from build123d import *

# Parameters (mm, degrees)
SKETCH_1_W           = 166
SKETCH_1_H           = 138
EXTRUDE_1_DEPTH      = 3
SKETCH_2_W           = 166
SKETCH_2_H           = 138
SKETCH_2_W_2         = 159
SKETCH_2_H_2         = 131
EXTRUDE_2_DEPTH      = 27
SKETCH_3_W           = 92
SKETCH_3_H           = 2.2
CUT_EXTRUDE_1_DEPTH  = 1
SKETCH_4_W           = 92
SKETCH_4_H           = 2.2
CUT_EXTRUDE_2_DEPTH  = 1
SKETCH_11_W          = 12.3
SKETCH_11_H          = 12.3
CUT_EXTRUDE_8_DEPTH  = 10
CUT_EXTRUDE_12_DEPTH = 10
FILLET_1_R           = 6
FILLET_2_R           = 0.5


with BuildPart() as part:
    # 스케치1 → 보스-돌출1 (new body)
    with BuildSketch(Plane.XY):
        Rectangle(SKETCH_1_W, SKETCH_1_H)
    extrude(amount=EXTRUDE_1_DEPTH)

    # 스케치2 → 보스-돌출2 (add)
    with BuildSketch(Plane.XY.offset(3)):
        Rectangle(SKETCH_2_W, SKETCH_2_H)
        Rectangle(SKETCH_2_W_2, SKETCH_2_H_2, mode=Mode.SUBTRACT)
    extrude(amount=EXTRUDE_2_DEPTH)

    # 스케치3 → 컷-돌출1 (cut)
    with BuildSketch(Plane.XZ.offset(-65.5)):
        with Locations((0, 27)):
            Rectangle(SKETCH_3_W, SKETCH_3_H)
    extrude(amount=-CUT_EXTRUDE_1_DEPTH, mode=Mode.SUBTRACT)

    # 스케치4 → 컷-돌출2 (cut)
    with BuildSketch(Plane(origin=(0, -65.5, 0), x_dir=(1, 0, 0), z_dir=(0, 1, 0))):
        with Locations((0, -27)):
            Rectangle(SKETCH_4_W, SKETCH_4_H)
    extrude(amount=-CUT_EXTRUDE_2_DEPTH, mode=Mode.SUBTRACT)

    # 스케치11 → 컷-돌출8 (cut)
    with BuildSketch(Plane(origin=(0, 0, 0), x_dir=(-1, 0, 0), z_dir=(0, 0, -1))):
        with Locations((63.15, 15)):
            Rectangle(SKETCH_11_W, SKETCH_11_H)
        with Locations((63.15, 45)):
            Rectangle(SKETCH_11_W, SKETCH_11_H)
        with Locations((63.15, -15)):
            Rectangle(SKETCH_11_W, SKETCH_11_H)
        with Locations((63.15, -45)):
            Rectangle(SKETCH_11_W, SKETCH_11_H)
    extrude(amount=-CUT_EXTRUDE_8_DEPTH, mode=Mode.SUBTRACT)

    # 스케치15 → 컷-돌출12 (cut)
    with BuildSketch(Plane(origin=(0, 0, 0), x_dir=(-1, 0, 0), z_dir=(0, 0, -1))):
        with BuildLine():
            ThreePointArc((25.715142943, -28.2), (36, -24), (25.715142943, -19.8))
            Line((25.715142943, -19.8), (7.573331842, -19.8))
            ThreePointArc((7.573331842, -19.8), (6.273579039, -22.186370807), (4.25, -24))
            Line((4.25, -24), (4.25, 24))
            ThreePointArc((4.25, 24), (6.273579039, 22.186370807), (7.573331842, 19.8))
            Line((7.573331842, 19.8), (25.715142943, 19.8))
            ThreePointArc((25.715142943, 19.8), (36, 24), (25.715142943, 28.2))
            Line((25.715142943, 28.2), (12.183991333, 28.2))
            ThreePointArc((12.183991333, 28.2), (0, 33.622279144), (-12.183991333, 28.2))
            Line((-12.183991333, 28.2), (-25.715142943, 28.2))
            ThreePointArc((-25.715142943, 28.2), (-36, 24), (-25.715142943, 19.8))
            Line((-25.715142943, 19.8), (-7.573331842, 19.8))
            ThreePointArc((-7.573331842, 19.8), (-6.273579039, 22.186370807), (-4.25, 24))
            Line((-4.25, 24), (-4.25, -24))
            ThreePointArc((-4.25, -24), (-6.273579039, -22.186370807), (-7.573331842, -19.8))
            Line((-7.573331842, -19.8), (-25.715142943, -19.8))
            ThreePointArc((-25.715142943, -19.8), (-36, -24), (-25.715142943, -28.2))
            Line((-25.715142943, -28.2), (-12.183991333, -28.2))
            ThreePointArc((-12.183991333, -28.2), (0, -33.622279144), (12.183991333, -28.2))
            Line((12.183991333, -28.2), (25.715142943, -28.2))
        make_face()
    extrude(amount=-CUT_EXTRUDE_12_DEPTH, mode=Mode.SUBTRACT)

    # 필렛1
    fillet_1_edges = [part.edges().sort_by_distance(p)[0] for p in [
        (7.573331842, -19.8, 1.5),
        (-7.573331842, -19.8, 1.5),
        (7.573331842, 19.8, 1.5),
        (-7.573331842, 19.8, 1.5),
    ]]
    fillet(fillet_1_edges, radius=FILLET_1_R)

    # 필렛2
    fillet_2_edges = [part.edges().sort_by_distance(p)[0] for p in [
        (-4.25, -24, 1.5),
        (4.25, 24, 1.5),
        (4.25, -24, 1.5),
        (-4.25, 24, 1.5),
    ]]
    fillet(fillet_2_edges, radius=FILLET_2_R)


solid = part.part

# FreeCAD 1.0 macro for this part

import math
import FreeCAD as App
import Part
import Sketcher

V = App.Vector


def edges_at(feature, points):
    """Names of the edges that pass closest to the given points."""
    edges = feature.Shape.Edges
    near = lambda p: min(range(len(edges)), key=lambda i: edges[i].distToShape(Part.Vertex(*p))[0])
    return sorted({f"Edge{near(p) + 1}" for p in points})

doc = App.newDocument("Part")
params = doc.addObject("Spreadsheet::Sheet", "Params")
for row, (alias, value) in enumerate([
    ("sketch1_width", "166 mm"),
    ("sketch1_height", "138 mm"),
    ("pad1_length", "3 mm"),
    ("sketch2_width", "166 mm"),
    ("sketch2_width2", "159 mm"),
    ("sketch2_height", "138 mm"),
    ("sketch2_height2", "131 mm"),
    ("pad2_length", "27 mm"),
    ("sketch3_width", "92 mm"),
    ("sketch3_height", "2.2 mm"),
    ("pocket1_length", "1 mm"),
    ("sketch4_width", "92 mm"),
    ("sketch4_height", "2.2 mm"),
    ("pocket2_length", "1 mm"),
    ("sketch5_width", "12.3 mm"),
    ("pocket3_length", "10 mm"),
    ("sketch6_radius", "6 mm"),
    ("sketch6_radius2", "8 mm"),
    ("sketch6_radius3", "16.4 mm"),
    ("sketch6_height", "48 mm"),
    ("pocket4_length", "10 mm"),
    ("fillet_radius", "6 mm"),
    ("fillet2_radius", "0.5 mm"),
], start=1):
    params.set(f"A{row}", alias)
    params.set(f"B{row}", "=" + value)
    params.setAlias(f"B{row}", alias)

body = doc.addObject("PartDesign::Body", "Body")

# Sketch on XY plane
sketch1 = body.newObject("Sketcher::SketchObject", "Sketch")
sketch1.AttachmentSupport = (doc.getObject("XY_Plane"), [""])
sketch1.MapMode = "FlatFace"
sketch1.addGeometry([
    Part.LineSegment(V(-83, 69, 0), V(-83, -69, 0)),
    Part.LineSegment(V(-83, -69, 0), V(83, -69, 0)),
    Part.LineSegment(V(83, -69, 0), V(83, 69, 0)),
    Part.LineSegment(V(83, 69, 0), V(-83, 69, 0)),
], False)
sketch1.addConstraint([
    Sketcher.Constraint("Coincident", 0, 2, 1, 1),
    Sketcher.Constraint("Coincident", 1, 2, 2, 1),
    Sketcher.Constraint("Coincident", 2, 2, 3, 1),
    Sketcher.Constraint("Coincident", 3, 2, 0, 1),
    Sketcher.Constraint("Vertical", 0),
    Sketcher.Constraint("Horizontal", 1),
    Sketcher.Constraint("Vertical", 2),
    Sketcher.Constraint("Horizontal", 3),
    Sketcher.Constraint("Symmetric", 0, 2, 2, 2, -1, 1),
    Sketcher.Constraint("DistanceX", 1, 1, 1, 2, 166.0),
    Sketcher.Constraint("DistanceY", 0, 2, 0, 1, 138.0),
])
sketch1.setExpression("Constraints[9]", "Params.sketch1_width")
sketch1.setExpression("Constraints[10]", "Params.sketch1_height")
pad1 = body.newObject("PartDesign::Pad", "Pad")
pad1.Profile = sketch1
pad1.setExpression("Length", "Params.pad1_length")

# Sketch on XY plane
sketch2 = body.newObject("Sketcher::SketchObject", "Sketch001")
sketch2.AttachmentSupport = (doc.getObject("XY_Plane"), [""])
sketch2.MapMode = "FlatFace"
sketch2.AttachmentOffset = App.Placement(V(0, 0, 3), App.Rotation())
sketch2.addGeometry([
    Part.LineSegment(V(-83, 69, 0), V(-83, -69, 0)),  # 0
    Part.LineSegment(V(-83, -69, 0), V(83, -69, 0)),  # 1
    Part.LineSegment(V(83, -69, 0), V(83, 69, 0)),  # 2
    Part.LineSegment(V(83, 69, 0), V(-83, 69, 0)),  # 3
    Part.LineSegment(V(80, -66, 0), V(-80, -66, 0)),  # 4
    Part.LineSegment(V(-80, -66, 0), V(-80, 66, 0)),  # 5
    Part.LineSegment(V(-80, 66, 0), V(80, 66, 0)),  # 6
    Part.LineSegment(V(80, 66, 0), V(80, -66, 0)),  # 7
], False)
sketch2.addConstraint([
    Sketcher.Constraint("Coincident", 0, 2, 1, 1),
    Sketcher.Constraint("Coincident", 1, 2, 2, 1),
    Sketcher.Constraint("Coincident", 2, 2, 3, 1),
    Sketcher.Constraint("Coincident", 3, 2, 0, 1),
    Sketcher.Constraint("Coincident", 4, 2, 5, 1),
    Sketcher.Constraint("Coincident", 5, 2, 6, 1),
    Sketcher.Constraint("Coincident", 6, 2, 7, 1),
    Sketcher.Constraint("Coincident", 7, 2, 4, 1),
    Sketcher.Constraint("Vertical", 0),
    Sketcher.Constraint("Horizontal", 1),
    Sketcher.Constraint("Vertical", 2),
    Sketcher.Constraint("Horizontal", 3),
    Sketcher.Constraint("Horizontal", 4),
    Sketcher.Constraint("Vertical", 5),
    Sketcher.Constraint("Horizontal", 6),
    Sketcher.Constraint("Vertical", 7),
    Sketcher.Constraint("Symmetric", 0, 2, 2, 2, -1, 1),
    Sketcher.Constraint("Symmetric", 4, 2, 6, 2, -1, 1),
    Sketcher.Constraint("DistanceX", 1, 1, 1, 2, 166.0),
    Sketcher.Constraint("DistanceX", 4, 2, 4, 1, 159.0),
    Sketcher.Constraint("DistanceY", 0, 2, 0, 1, 138.0),
    Sketcher.Constraint("DistanceY", 5, 1, 5, 2, 131.0),
])
sketch2.setExpression("Constraints[18]", "Params.sketch2_width")
sketch2.setExpression("Constraints[19]", "Params.sketch2_width2")
sketch2.setExpression("Constraints[20]", "Params.sketch2_height")
sketch2.setExpression("Constraints[21]", "Params.sketch2_height2")
pad2 = body.newObject("PartDesign::Pad", "Pad001")
pad2.Profile = sketch2
pad2.setExpression("Length", "Params.pad2_length")

# Sketch on XZ plane
sketch3 = body.newObject("Sketcher::SketchObject", "Sketch002")
sketch3.AttachmentSupport = (doc.getObject("XZ_Plane"), [""])
sketch3.MapMode = "FlatFace"
sketch3.AttachmentOffset = App.Placement(V(0, 0, -65.5), App.Rotation())
sketch3.addGeometry([
    Part.LineSegment(V(-46, 28.1, 0), V(-46, 25.9, 0)),
    Part.LineSegment(V(-46, 25.9, 0), V(46, 25.9, 0)),
    Part.LineSegment(V(46, 25.9, 0), V(46, 28.1, 0)),
    Part.LineSegment(V(46, 28.1, 0), V(-46, 28.1, 0)),
], False)
sketch3.addConstraint([
    Sketcher.Constraint("Coincident", 0, 2, 1, 1),
    Sketcher.Constraint("Coincident", 1, 2, 2, 1),
    Sketcher.Constraint("Coincident", 2, 2, 3, 1),
    Sketcher.Constraint("Coincident", 3, 2, 0, 1),
    Sketcher.Constraint("Vertical", 0),
    Sketcher.Constraint("Horizontal", 1),
    Sketcher.Constraint("Vertical", 2),
    Sketcher.Constraint("Horizontal", 3),
    Sketcher.Constraint("DistanceX", 1, 1, 1, 2, 92.0),
    Sketcher.Constraint("DistanceY", 0, 2, 0, 1, 2.2),
    Sketcher.Constraint("DistanceX", 0, 2, -1, 1, 46.0),
    Sketcher.Constraint("DistanceY", -1, 1, 0, 2, 25.9),
])
sketch3.setExpression("Constraints[8]", "Params.sketch3_width")
sketch3.setExpression("Constraints[9]", "Params.sketch3_height")
pocket1 = body.newObject("PartDesign::Pocket", "Pocket")
pocket1.Profile = sketch3
pocket1.setExpression("Length", "Params.pocket1_length")

# Sketch on XZ plane
sketch4 = body.newObject("Sketcher::SketchObject", "Sketch003")
sketch4.AttachmentSupport = (doc.getObject("XZ_Plane"), [""])
sketch4.MapMode = "FlatFace"
sketch4.AttachmentOffset = App.Placement(V(0, 0, 65.5), App.Rotation())
sketch4.addGeometry([
    Part.LineSegment(V(-46, 25.9, 0), V(-46, 28.1, 0)),
    Part.LineSegment(V(-46, 28.1, 0), V(46, 28.1, 0)),
    Part.LineSegment(V(46, 28.1, 0), V(46, 25.9, 0)),
    Part.LineSegment(V(46, 25.9, 0), V(-46, 25.9, 0)),
], False)
sketch4.addConstraint([
    Sketcher.Constraint("Coincident", 0, 2, 1, 1),
    Sketcher.Constraint("Coincident", 1, 2, 2, 1),
    Sketcher.Constraint("Coincident", 2, 2, 3, 1),
    Sketcher.Constraint("Coincident", 3, 2, 0, 1),
    Sketcher.Constraint("Vertical", 0),
    Sketcher.Constraint("Horizontal", 1),
    Sketcher.Constraint("Vertical", 2),
    Sketcher.Constraint("Horizontal", 3),
    Sketcher.Constraint("DistanceX", 1, 1, 1, 2, 92.0),
    Sketcher.Constraint("DistanceY", 0, 1, 0, 2, 2.2),
    Sketcher.Constraint("DistanceX", 0, 2, -1, 1, 46.0),
    Sketcher.Constraint("DistanceY", -1, 1, 0, 2, 28.1),
])
sketch4.setExpression("Constraints[8]", "Params.sketch4_width")
sketch4.setExpression("Constraints[9]", "Params.sketch4_height")
pocket2 = body.newObject("PartDesign::Pocket", "Pocket001")
pocket2.Profile = sketch4
pocket2.setExpression("Length", "Params.pocket2_length")
pocket2.Reversed = True

# Sketch on XY plane
sketch5 = body.newObject("Sketcher::SketchObject", "Sketch004")
sketch5.AttachmentSupport = (doc.getObject("XY_Plane"), [""])
sketch5.MapMode = "FlatFace"
sketch5.addGeometry([
    Part.LineSegment(V(-57, 21, 0), V(-57, 9, 0)),  # 0
    Part.LineSegment(V(-57, 9, 0), V(-69, 9, 0)),  # 1
    Part.LineSegment(V(-69, 9, 0), V(-69, 21, 0)),  # 2
    Part.LineSegment(V(-69, 21, 0), V(-57, 21, 0)),  # 3
    Part.LineSegment(V(-57, 51, 0), V(-57, 39, 0)),  # 4
    Part.LineSegment(V(-57, 39, 0), V(-69, 39, 0)),  # 5
    Part.LineSegment(V(-69, 39, 0), V(-69, 51, 0)),  # 6
    Part.LineSegment(V(-69, 51, 0), V(-57, 51, 0)),  # 7
    Part.LineSegment(V(-57, -9, 0), V(-57, -21, 0)),  # 8
    Part.LineSegment(V(-57, -21, 0), V(-69, -21, 0)),  # 9
    Part.LineSegment(V(-69, -21, 0), V(-69, -9, 0)),  # 10
    Part.LineSegment(V(-69, -9, 0), V(-57, -9, 0)),  # 11
    Part.LineSegment(V(-57, -39, 0), V(-57, -51, 0)),  # 12
    Part.LineSegment(V(-57, -51, 0), V(-69, -51, 0)),  # 13
    Part.LineSegment(V(-69, -51, 0), V(-69, -39, 0)),  # 14
    Part.LineSegment(V(-69, -39, 0), V(-57, -39, 0)),  # 15
], False)
sketch5.addConstraint([
    Sketcher.Constraint("Coincident", 0, 2, 1, 1),
    Sketcher.Constraint("Coincident", 1, 2, 2, 1),
    Sketcher.Constraint("Coincident", 2, 2, 3, 1),
    Sketcher.Constraint("Coincident", 3, 2, 0, 1),
    Sketcher.Constraint("Coincident", 4, 2, 5, 1),
    Sketcher.Constraint("Coincident", 5, 2, 6, 1),
    Sketcher.Constraint("Coincident", 6, 2, 7, 1),
    Sketcher.Constraint("Coincident", 7, 2, 4, 1),
    Sketcher.Constraint("Coincident", 8, 2, 9, 1),
    Sketcher.Constraint("Coincident", 9, 2, 10, 1),
    Sketcher.Constraint("Coincident", 10, 2, 11, 1),
    Sketcher.Constraint("Coincident", 11, 2, 8, 1),
    Sketcher.Constraint("Coincident", 12, 2, 13, 1),
    Sketcher.Constraint("Coincident", 13, 2, 14, 1),
    Sketcher.Constraint("Coincident", 14, 2, 15, 1),
    Sketcher.Constraint("Coincident", 15, 2, 12, 1),
    Sketcher.Constraint("Vertical", 0),
    Sketcher.Constraint("Horizontal", 1),
    Sketcher.Constraint("Vertical", 2),
    Sketcher.Constraint("Horizontal", 3),
    Sketcher.Constraint("Vertical", 4),
    Sketcher.Constraint("Horizontal", 5),
    Sketcher.Constraint("Vertical", 6),
    Sketcher.Constraint("Horizontal", 7),
    Sketcher.Constraint("Vertical", 8),
    Sketcher.Constraint("Horizontal", 9),
    Sketcher.Constraint("Vertical", 10),
    Sketcher.Constraint("Horizontal", 11),
    Sketcher.Constraint("Vertical", 12),
    Sketcher.Constraint("Horizontal", 13),
    Sketcher.Constraint("Vertical", 14),
    Sketcher.Constraint("Horizontal", 15),
    Sketcher.Constraint("Symmetric", 3, 2, 8, 2, -1),
    Sketcher.Constraint("Symmetric", 1, 2, 10, 2, -1),
    Sketcher.Constraint("Symmetric", 7, 2, 12, 2, -1),
    Sketcher.Constraint("Symmetric", 5, 2, 14, 2, -1),
    Sketcher.Constraint("Vertical", 3, 2, 4, 2),
    Sketcher.Constraint("Vertical", 2, 2, 5, 2),
    Sketcher.Constraint("Equal", 15, 0),
    Sketcher.Constraint("Equal", 2, 4),
    Sketcher.Constraint("DistanceX", 1, 2, 1, 1, 12.3),
    Sketcher.Constraint("DistanceX", 0, 2, -1, 1, 57.0),
    Sketcher.Constraint("DistanceY", 0, 2, 4, 2, 30.0),
    Sketcher.Constraint("DistanceY", 8, 2, 0, 2, 30.0),
])
sketch5.setExpression("Constraints[40]", "Params.sketch5_width")
pocket3 = body.newObject("PartDesign::Pocket", "Pocket002")
pocket3.Profile = sketch5
pocket3.setExpression("Length", "Params.pocket3_length")
pocket3.Reversed = True

# Sketch on XY plane
sketch6 = body.newObject("Sketcher::SketchObject", "Sketch005")
sketch6.AttachmentSupport = (doc.getObject("XY_Plane"), [""])
sketch6.MapMode = "FlatFace"
sketch6.addGeometry([
    Part.ArcOfCircle(Part.Circle(V(-30, -24, 0), V(0, 0, 1), 6), math.radians(44), math.radians(316)),  # 0
    Part.LineSegment(V(-26, -20, 0), V(-8, -20, 0)),  # 1
    Part.ArcOfCircle(Part.Circle(V(0, -17, 0), V(0, 0, 1), 8), math.radians(-161), math.radians(-122)),  # 2
    Part.LineSegment(V(-4, -24, 0), V(-4, 24, 0)),  # 3
    Part.ArcOfCircle(Part.Circle(V(0, 17, 0), V(0, 0, 1), 8), math.radians(122), math.radians(161)),  # 4
    Part.LineSegment(V(-8, 20, 0), V(-26, 20, 0)),  # 5
    Part.ArcOfCircle(Part.Circle(V(-30, 24, 0), V(0, 0, 1), 6), math.radians(44), math.radians(316)),  # 6
    Part.LineSegment(V(-26, 28, 0), V(-12, 28, 0)),  # 7
    Part.ArcOfCircle(Part.Circle(V(0, 17, 0), V(0, 0, 1), 16), math.radians(42), math.radians(138)),  # 8
    Part.LineSegment(V(12, 28, 0), V(26, 28, 0)),  # 9
    Part.ArcOfCircle(Part.Circle(V(30, 24, 0), V(0, 0, 1), 6), math.radians(-136), math.radians(136)),  # 10
    Part.LineSegment(V(26, 20, 0), V(8, 20, 0)),  # 11
    Part.ArcOfCircle(Part.Circle(V(0, 17, 0), V(0, 0, 1), 8), math.radians(19), math.radians(58)),  # 12
    Part.LineSegment(V(4, 24, 0), V(4, -24, 0)),  # 13
    Part.ArcOfCircle(Part.Circle(V(0, -17, 0), V(0, 0, 1), 8), math.radians(-58), math.radians(-19)),  # 14
    Part.LineSegment(V(8, -20, 0), V(26, -20, 0)),  # 15
    Part.ArcOfCircle(Part.Circle(V(30, -24, 0), V(0, 0, 1), 6), math.radians(-136), math.radians(136)),  # 16
    Part.LineSegment(V(26, -28, 0), V(12, -28, 0)),  # 17
    Part.ArcOfCircle(Part.Circle(V(0, -17, 0), V(0, 0, 1), 16), math.radians(-138), math.radians(-42)),  # 18
    Part.LineSegment(V(-12, -28, 0), V(-26, -28, 0)),  # 19
], False)
sketch6.addConstraint([
    Sketcher.Constraint("Coincident", 0, 1, 1, 1),
    Sketcher.Constraint("Coincident", 1, 2, 2, 1),
    Sketcher.Constraint("Coincident", 2, 2, 3, 1),
    Sketcher.Constraint("Coincident", 3, 2, 4, 1),
    Sketcher.Constraint("Coincident", 4, 2, 5, 1),
    Sketcher.Constraint("Coincident", 5, 2, 6, 2),
    Sketcher.Constraint("Coincident", 6, 1, 7, 1),
    Sketcher.Constraint("Coincident", 7, 2, 8, 2),
    Sketcher.Constraint("Coincident", 8, 1, 9, 1),
    Sketcher.Constraint("Coincident", 9, 2, 10, 2),
    Sketcher.Constraint("Coincident", 10, 1, 11, 1),
    Sketcher.Constraint("Coincident", 11, 2, 12, 1),
    Sketcher.Constraint("Coincident", 12, 2, 13, 1),
    Sketcher.Constraint("Coincident", 13, 2, 14, 1),
    Sketcher.Constraint("Coincident", 14, 2, 15, 1),
    Sketcher.Constraint("Coincident", 15, 2, 16, 2),
    Sketcher.Constraint("Coincident", 16, 1, 17, 1),
    Sketcher.Constraint("Coincident", 17, 2, 18, 2),
    Sketcher.Constraint("Coincident", 18, 1, 19, 1),
    Sketcher.Constraint("Coincident", 19, 2, 0, 2),
    Sketcher.Constraint("Horizontal", 1),
    Sketcher.Constraint("Vertical", 3),
    Sketcher.Constraint("Horizontal", 5),
    Sketcher.Constraint("Horizontal", 7),
    Sketcher.Constraint("Horizontal", 9),
    Sketcher.Constraint("Horizontal", 11),
    Sketcher.Constraint("Vertical", 13),
    Sketcher.Constraint("Horizontal", 15),
    Sketcher.Constraint("Horizontal", 17),
    Sketcher.Constraint("Horizontal", 19),
    Sketcher.Constraint("Coincident", 8, 3, 4, 3),
    Sketcher.Constraint("Coincident", 12, 3, 4, 3),
    Sketcher.Constraint("Coincident", 14, 3, 2, 3),
    Sketcher.Constraint("Coincident", 18, 3, 2, 3),
    Sketcher.Constraint("Equal", 2, 4),
    Sketcher.Constraint("Equal", 0, 6),
    Sketcher.Constraint("Equal", 6, 10),
    Sketcher.Constraint("Equal", 4, 12),
    Sketcher.Constraint("Equal", 12, 14),
    Sketcher.Constraint("Equal", 10, 16),
    Sketcher.Constraint("Equal", 8, 18),
    Sketcher.Constraint("Symmetric", 2, 3, 4, 3, -1, 1),
    Sketcher.Constraint("Symmetric", 0, 3, 10, 3, -1, 1),
    Sketcher.Constraint("Symmetric", 6, 3, 16, 3, -1, 1),
    Sketcher.Constraint("Symmetric", 6, 3, 10, 3, -2),
    Sketcher.Constraint("Symmetric", 7, 2, 8, 1, -2),
    Sketcher.Constraint("Horizontal", 16, 3, 2, 2),
    Sketcher.Constraint("Horizontal", 5, 2, 10, 1),
    Sketcher.Constraint("Horizontal", 3, 2, 12, 2),
    Sketcher.Constraint("Horizontal", 1, 2, 14, 2),
    Sketcher.Constraint("Horizontal", 17, 2, 18, 1),
    Sketcher.Constraint("Vertical", 1, 2, 4, 2),
    Sketcher.Constraint("Vertical", 5, 2, 6, 1),
    Sketcher.Constraint("Vertical", 15, 2, 16, 1),
    Sketcher.Constraint("Radius", 0, 6.0),
    Sketcher.Constraint("Radius", 2, 8.0),
    Sketcher.Constraint("Radius", 8, 16.4),
    Sketcher.Constraint("DistanceY", 3, 1, 3, 2, 48.0),
    Sketcher.Constraint("DistanceX", 0, 3, -1, 1, 30.0),
    Sketcher.Constraint("DistanceY", 0, 1, -1, 1, 19.8),
    Sketcher.Constraint("DistanceX", 3, 2, 12, 2, 8.5),
])
sketch6.setExpression("Constraints[54]", "Params.sketch6_radius")
sketch6.setExpression("Constraints[55]", "Params.sketch6_radius2")
sketch6.setExpression("Constraints[56]", "Params.sketch6_radius3")
sketch6.setExpression("Constraints[57]", "Params.sketch6_height")
pocket4 = body.newObject("PartDesign::Pocket", "Pocket003")
pocket4.Profile = sketch6
pocket4.setExpression("Length", "Params.pocket4_length")
pocket4.Reversed = True
doc.recompute()

fillet = body.newObject("PartDesign::Fillet", "Fillet")
fillet.Base = (pocket4, edges_at(pocket4, [
    (7.573, -19.8, 1.5),
    (-7.573, -19.8, 1.5),
    (7.573, 19.8, 1.5),
    (-7.573, 19.8, 1.5),
]))
fillet.setExpression("Radius", "Params.fillet_radius")
doc.recompute()

fillet2 = body.newObject("PartDesign::Fillet", "Fillet001")
fillet2.Base = (fillet, edges_at(fillet, [
    (-4.25, -24, 1.5),
    (4.25, 24, 1.5),
    (4.25, -24, 1.5),
    (-4.25, 24, 1.5),
]))
fillet2.setExpression("Radius", "Params.fillet2_radius")

doc.recompute()
